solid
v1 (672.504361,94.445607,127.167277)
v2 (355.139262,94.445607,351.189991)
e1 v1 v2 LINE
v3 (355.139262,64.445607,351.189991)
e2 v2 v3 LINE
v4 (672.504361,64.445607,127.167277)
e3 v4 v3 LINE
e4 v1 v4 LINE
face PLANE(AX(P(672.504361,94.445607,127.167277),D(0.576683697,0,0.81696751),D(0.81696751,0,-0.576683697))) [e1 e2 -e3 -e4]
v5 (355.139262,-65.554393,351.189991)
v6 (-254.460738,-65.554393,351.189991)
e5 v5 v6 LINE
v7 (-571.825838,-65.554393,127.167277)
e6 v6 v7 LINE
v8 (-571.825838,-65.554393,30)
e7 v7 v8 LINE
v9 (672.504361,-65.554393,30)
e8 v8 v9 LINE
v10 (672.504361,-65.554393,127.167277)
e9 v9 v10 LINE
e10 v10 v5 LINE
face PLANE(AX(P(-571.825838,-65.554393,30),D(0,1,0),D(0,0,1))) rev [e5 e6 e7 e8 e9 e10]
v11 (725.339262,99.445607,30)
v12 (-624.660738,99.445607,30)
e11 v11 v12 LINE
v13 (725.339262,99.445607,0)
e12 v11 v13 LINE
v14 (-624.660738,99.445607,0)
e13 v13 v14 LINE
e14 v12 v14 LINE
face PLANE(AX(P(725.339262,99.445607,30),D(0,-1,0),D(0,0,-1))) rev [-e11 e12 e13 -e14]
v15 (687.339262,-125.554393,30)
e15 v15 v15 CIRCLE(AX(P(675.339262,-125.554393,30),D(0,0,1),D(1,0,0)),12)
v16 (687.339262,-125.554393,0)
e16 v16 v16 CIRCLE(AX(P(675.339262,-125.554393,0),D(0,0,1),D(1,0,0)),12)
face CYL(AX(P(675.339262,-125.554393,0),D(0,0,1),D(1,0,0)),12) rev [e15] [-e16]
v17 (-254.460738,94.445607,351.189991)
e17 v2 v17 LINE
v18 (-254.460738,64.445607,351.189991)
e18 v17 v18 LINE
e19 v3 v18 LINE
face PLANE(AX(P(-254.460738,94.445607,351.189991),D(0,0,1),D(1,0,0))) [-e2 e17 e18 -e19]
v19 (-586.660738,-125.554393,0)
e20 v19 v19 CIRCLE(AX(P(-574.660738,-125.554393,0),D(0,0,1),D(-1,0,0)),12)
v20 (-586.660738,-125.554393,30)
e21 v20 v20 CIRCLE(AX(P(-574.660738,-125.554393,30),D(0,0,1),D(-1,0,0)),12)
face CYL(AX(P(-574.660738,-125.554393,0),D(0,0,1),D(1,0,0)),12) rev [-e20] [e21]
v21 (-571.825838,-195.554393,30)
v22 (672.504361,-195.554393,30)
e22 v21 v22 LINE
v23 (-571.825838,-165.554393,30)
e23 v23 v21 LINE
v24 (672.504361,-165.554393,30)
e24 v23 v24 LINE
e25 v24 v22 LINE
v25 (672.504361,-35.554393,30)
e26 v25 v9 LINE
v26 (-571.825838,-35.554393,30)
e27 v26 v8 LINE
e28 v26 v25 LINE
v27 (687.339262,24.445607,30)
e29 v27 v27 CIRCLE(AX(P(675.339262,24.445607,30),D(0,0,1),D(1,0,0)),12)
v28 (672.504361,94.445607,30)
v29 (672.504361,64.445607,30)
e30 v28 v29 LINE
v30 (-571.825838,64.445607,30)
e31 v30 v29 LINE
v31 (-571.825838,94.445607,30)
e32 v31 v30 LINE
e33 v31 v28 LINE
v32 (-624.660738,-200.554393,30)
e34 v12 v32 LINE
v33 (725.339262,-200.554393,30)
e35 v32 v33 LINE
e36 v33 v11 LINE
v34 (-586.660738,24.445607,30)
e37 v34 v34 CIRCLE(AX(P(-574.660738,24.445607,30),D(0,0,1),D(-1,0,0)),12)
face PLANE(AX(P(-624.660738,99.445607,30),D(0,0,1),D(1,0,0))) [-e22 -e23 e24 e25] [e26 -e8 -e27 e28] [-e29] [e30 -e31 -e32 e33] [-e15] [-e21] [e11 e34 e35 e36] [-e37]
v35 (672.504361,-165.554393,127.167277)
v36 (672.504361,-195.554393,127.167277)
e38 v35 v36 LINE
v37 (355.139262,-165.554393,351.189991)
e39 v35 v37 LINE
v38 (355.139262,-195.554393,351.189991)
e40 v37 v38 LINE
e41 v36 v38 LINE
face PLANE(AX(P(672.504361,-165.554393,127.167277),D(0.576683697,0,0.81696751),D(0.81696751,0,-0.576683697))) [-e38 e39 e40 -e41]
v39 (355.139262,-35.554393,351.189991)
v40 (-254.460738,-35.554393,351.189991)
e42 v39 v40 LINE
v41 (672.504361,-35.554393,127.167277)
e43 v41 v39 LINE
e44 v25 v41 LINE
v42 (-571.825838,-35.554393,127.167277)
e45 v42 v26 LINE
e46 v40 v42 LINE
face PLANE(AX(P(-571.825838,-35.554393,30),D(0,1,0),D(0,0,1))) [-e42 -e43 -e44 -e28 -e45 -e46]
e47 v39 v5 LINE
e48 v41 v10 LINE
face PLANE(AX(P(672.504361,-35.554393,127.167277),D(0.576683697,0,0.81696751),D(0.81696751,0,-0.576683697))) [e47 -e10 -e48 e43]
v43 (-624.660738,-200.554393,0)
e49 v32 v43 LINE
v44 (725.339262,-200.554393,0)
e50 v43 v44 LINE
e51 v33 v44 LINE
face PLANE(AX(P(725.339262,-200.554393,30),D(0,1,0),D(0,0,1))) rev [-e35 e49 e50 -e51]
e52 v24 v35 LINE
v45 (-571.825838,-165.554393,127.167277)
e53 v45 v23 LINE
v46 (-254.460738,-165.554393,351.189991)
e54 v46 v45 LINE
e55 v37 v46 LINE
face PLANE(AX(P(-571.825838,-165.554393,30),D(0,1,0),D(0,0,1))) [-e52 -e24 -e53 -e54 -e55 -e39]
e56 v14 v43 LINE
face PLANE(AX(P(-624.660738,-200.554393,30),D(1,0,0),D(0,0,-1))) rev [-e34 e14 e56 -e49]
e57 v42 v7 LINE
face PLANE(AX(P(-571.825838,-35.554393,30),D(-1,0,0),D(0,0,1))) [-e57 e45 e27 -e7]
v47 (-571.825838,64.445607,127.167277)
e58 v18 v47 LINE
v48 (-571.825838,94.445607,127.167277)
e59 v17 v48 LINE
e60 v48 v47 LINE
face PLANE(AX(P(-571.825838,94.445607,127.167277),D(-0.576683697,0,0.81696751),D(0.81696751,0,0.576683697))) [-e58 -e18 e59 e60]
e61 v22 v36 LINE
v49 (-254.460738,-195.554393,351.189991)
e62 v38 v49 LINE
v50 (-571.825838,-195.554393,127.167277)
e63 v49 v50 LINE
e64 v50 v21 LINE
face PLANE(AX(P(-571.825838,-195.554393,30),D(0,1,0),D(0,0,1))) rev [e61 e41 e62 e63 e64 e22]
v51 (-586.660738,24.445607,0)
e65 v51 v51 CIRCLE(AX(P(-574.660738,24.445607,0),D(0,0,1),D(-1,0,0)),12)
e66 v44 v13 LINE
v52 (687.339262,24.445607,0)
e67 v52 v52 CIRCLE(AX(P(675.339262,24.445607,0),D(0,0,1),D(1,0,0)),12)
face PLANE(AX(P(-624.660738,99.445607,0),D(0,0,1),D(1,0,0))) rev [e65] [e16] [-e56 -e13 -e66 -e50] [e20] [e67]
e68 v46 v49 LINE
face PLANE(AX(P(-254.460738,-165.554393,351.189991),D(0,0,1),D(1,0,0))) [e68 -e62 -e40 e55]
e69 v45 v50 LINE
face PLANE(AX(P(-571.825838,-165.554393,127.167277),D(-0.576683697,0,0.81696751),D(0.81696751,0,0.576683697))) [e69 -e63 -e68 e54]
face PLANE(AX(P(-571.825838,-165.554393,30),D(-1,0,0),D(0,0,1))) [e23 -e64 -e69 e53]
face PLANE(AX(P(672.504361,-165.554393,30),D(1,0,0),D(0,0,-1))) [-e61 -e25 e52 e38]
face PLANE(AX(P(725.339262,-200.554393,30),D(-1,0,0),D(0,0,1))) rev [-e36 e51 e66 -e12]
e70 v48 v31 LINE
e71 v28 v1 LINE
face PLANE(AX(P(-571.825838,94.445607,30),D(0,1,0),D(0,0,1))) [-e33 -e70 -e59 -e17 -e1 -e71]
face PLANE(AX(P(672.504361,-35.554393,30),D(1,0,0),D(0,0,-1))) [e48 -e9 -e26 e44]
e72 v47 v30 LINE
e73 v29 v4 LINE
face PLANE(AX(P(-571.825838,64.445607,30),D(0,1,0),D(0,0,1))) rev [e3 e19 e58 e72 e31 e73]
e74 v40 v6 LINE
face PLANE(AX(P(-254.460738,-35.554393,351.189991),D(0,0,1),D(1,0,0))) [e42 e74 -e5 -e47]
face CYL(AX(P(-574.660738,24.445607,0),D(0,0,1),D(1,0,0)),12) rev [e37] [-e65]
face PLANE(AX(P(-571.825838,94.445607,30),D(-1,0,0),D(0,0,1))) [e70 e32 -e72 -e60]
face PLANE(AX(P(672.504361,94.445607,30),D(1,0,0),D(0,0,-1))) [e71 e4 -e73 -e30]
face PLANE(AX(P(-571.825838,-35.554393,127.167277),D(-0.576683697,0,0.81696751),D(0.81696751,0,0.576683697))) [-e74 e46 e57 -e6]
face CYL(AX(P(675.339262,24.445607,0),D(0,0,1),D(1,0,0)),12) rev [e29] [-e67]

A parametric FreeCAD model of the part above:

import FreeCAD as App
import Part
import Sketcher

doc = App.newDocument("Part")
body = doc.addObject("PartDesign::Body", "Body")

# Sketch on XY plane
sketch1 = body.newObject("Sketcher::SketchObject", "Sketch")
sketch1.AttachmentSupport = (doc.getObject("XY_Plane"), [""])
sketch1.MapMode = "FlatFace"
sketch1.addGeometry([
    Part.LineSegment(App.Vector(-625, 99, 0), App.Vector(-625, -201, 0)),
    Part.LineSegment(App.Vector(-625, -201, 0), App.Vector(725, -201, 0)),
    Part.LineSegment(App.Vector(725, -201, 0), App.Vector(725, 99, 0)),
    Part.LineSegment(App.Vector(725, 99, 0), App.Vector(-625, 99, 0)),
], False)
sketch1.addConstraint([
    Sketcher.Constraint("Coincident", 0, 2, 1, 1),
    Sketcher.Constraint("Coincident", 1, 2, 2, 1),
    Sketcher.Constraint("Coincident", 2, 2, 3, 1),
    Sketcher.Constraint("Coincident", 3, 2, 0, 1),
    Sketcher.Constraint("Vertical", 0),
    Sketcher.Constraint("Horizontal", 1),
    Sketcher.Constraint("Vertical", 2),
    Sketcher.Constraint("Horizontal", 3),
    Sketcher.Constraint("DistanceX", 1, 1, 1, 2, 1350.0),
    Sketcher.Constraint("DistanceY", 0, 2, 0, 1, 300.0),
    Sketcher.Constraint("DistanceX", 0, 2, -1, 1, 624.660738),
    Sketcher.Constraint("DistanceY", 0, 2, -1, 1, 200.554393),
])
pad1 = body.newObject("PartDesign::Pad", "Pad")
pad1.Profile = sketch1
pad1.Length = 30

# Sketch on XY plane
sketch2 = body.newObject("Sketcher::SketchObject", "Sketch001")
sketch2.AttachmentSupport = (doc.getObject("XY_Plane"), [""])
sketch2.MapMode = "FlatFace"
sketch2.AttachmentOffset = App.Placement(App.Vector(0, 0, 30), App.Rotation())
sketch2.addGeometry([
    Part.Circle(App.Vector(675, 24, 0), App.Vector(0, 0, 1), 12),
    Part.Circle(App.Vector(675, -126, 0), App.Vector(0, 0, 1), 12),
    Part.Circle(App.Vector(-575, -126, 0), App.Vector(0, 0, 1), 12),
    Part.Circle(App.Vector(-575, 24, 0), App.Vector(0, 0, 1), 12),
], False)
sketch2.addConstraint([
    Sketcher.Constraint("Equal", 0, 1),
    Sketcher.Constraint("Equal", 1, 2),
    Sketcher.Constraint("Equal", 2, 3),
    Sketcher.Constraint("Horizontal", 1, 3, 2, 3),
    Sketcher.Constraint("Horizontal", 0, 3, 3, 3),
    Sketcher.Constraint("Vertical", 0, 3, 1, 3),
    Sketcher.Constraint("Vertical", 2, 3, 3, 3),
    Sketcher.Constraint("Diameter", 0, 24.0),
    Sketcher.Constraint("DistanceY", 1, 3, 0, 3, 150.0),
    Sketcher.Constraint("DistanceX", 2, 3, 1, 3, 1250.0),
    Sketcher.Constraint("DistanceX", -1, 1, 0, 3, 675.339262),
    Sketcher.Constraint("DistanceY", -1, 1, 0, 3, 24.445607),
])
pocket1 = body.newObject("PartDesign::Pocket", "Pocket")
pocket1.Profile = sketch2
pocket1.Type = "ThroughAll"

# Sketch on XZ plane
sketch3 = body.newObject("Sketcher::SketchObject", "Sketch002")
sketch3.AttachmentSupport = (doc.getObject("XZ_Plane"), [""])
sketch3.MapMode = "FlatFace"
sketch3.AttachmentOffset = App.Placement(App.Vector(0, 0, 50.554393), App.Rotation())
sketch3.addGeometry([
    Part.LineSegment(App.Vector(-572, 127, 0), App.Vector(-572, 30, 0)),  # 0
    Part.LineSegment(App.Vector(-572, 30, 0), App.Vector(673, 30, 0)),  # 1
    Part.LineSegment(App.Vector(673, 30, 0), App.Vector(673, 127, 0)),  # 2
    Part.LineSegment(App.Vector(673, 127, 0), App.Vector(355, 351, 0)),  # 3
    Part.LineSegment(App.Vector(355, 351, 0), App.Vector(-254, 351, 0)),  # 4
    Part.LineSegment(App.Vector(-254, 351, 0), App.Vector(-572, 127, 0)),  # 5
], False)
sketch3.addConstraint([
    Sketcher.Constraint("Coincident", 0, 2, 1, 1),
    Sketcher.Constraint("Coincident", 1, 2, 2, 1),
    Sketcher.Constraint("Coincident", 2, 2, 3, 1),
    Sketcher.Constraint("Coincident", 3, 2, 4, 1),
    Sketcher.Constraint("Coincident", 4, 2, 5, 1),
    Sketcher.Constraint("Coincident", 5, 2, 0, 1),
    Sketcher.Constraint("Vertical", 0),
    Sketcher.Constraint("Horizontal", 1),
    Sketcher.Constraint("Vertical", 2),
    Sketcher.Constraint("Horizontal", 4),
    Sketcher.Constraint("Horizontal", 2, 2, 5, 2),
    Sketcher.Constraint("Equal", 3, 5),
    Sketcher.Constraint("DistanceX", 4, 2, 4, 1, 609.6),
    Sketcher.Constraint("DistanceY", -1, 1, 0, 2, 30.0),
    Sketcher.Constraint("DistanceX", 1, 1, 1, 2, 1244.330199),
    Sketcher.Constraint("DistanceY", 0, 2, 0, 1, 97.167277),
    Sketcher.Constraint("DistanceX", 0, 2, -1, 1, 571.825838),
    Sketcher.Constraint("DistanceY", -1, 1, 3, 2, 351.189991),
])
pad2 = body.newObject("PartDesign::Pad", "Pad001")
pad2.Profile = sketch3
pad2.Length = 30
pad2.Midplane = True
doc.recompute()

linearpattern = body.newObject("PartDesign::LinearPattern", "LinearPattern")
linearpattern.Originals = [pad2]
linearpattern.Direction = (doc.getObject("Y_Axis"), [""])
linearpattern.Mode = "offset"
linearpattern.Offset = 130
linearpattern.Occurrences = 2
linearpattern.Reversed = True
body.Tip = linearpattern
doc.recompute()

linearpattern2 = body.newObject("PartDesign::LinearPattern", "LinearPattern001")
linearpattern2.Originals = [pad2]
linearpattern2.Direction = (doc.getObject("Y_Axis"), [""])
linearpattern2.Mode = "offset"
linearpattern2.Offset = 130
linearpattern2.Occurrences = 2
body.Tip = linearpattern2

doc.recompute()
